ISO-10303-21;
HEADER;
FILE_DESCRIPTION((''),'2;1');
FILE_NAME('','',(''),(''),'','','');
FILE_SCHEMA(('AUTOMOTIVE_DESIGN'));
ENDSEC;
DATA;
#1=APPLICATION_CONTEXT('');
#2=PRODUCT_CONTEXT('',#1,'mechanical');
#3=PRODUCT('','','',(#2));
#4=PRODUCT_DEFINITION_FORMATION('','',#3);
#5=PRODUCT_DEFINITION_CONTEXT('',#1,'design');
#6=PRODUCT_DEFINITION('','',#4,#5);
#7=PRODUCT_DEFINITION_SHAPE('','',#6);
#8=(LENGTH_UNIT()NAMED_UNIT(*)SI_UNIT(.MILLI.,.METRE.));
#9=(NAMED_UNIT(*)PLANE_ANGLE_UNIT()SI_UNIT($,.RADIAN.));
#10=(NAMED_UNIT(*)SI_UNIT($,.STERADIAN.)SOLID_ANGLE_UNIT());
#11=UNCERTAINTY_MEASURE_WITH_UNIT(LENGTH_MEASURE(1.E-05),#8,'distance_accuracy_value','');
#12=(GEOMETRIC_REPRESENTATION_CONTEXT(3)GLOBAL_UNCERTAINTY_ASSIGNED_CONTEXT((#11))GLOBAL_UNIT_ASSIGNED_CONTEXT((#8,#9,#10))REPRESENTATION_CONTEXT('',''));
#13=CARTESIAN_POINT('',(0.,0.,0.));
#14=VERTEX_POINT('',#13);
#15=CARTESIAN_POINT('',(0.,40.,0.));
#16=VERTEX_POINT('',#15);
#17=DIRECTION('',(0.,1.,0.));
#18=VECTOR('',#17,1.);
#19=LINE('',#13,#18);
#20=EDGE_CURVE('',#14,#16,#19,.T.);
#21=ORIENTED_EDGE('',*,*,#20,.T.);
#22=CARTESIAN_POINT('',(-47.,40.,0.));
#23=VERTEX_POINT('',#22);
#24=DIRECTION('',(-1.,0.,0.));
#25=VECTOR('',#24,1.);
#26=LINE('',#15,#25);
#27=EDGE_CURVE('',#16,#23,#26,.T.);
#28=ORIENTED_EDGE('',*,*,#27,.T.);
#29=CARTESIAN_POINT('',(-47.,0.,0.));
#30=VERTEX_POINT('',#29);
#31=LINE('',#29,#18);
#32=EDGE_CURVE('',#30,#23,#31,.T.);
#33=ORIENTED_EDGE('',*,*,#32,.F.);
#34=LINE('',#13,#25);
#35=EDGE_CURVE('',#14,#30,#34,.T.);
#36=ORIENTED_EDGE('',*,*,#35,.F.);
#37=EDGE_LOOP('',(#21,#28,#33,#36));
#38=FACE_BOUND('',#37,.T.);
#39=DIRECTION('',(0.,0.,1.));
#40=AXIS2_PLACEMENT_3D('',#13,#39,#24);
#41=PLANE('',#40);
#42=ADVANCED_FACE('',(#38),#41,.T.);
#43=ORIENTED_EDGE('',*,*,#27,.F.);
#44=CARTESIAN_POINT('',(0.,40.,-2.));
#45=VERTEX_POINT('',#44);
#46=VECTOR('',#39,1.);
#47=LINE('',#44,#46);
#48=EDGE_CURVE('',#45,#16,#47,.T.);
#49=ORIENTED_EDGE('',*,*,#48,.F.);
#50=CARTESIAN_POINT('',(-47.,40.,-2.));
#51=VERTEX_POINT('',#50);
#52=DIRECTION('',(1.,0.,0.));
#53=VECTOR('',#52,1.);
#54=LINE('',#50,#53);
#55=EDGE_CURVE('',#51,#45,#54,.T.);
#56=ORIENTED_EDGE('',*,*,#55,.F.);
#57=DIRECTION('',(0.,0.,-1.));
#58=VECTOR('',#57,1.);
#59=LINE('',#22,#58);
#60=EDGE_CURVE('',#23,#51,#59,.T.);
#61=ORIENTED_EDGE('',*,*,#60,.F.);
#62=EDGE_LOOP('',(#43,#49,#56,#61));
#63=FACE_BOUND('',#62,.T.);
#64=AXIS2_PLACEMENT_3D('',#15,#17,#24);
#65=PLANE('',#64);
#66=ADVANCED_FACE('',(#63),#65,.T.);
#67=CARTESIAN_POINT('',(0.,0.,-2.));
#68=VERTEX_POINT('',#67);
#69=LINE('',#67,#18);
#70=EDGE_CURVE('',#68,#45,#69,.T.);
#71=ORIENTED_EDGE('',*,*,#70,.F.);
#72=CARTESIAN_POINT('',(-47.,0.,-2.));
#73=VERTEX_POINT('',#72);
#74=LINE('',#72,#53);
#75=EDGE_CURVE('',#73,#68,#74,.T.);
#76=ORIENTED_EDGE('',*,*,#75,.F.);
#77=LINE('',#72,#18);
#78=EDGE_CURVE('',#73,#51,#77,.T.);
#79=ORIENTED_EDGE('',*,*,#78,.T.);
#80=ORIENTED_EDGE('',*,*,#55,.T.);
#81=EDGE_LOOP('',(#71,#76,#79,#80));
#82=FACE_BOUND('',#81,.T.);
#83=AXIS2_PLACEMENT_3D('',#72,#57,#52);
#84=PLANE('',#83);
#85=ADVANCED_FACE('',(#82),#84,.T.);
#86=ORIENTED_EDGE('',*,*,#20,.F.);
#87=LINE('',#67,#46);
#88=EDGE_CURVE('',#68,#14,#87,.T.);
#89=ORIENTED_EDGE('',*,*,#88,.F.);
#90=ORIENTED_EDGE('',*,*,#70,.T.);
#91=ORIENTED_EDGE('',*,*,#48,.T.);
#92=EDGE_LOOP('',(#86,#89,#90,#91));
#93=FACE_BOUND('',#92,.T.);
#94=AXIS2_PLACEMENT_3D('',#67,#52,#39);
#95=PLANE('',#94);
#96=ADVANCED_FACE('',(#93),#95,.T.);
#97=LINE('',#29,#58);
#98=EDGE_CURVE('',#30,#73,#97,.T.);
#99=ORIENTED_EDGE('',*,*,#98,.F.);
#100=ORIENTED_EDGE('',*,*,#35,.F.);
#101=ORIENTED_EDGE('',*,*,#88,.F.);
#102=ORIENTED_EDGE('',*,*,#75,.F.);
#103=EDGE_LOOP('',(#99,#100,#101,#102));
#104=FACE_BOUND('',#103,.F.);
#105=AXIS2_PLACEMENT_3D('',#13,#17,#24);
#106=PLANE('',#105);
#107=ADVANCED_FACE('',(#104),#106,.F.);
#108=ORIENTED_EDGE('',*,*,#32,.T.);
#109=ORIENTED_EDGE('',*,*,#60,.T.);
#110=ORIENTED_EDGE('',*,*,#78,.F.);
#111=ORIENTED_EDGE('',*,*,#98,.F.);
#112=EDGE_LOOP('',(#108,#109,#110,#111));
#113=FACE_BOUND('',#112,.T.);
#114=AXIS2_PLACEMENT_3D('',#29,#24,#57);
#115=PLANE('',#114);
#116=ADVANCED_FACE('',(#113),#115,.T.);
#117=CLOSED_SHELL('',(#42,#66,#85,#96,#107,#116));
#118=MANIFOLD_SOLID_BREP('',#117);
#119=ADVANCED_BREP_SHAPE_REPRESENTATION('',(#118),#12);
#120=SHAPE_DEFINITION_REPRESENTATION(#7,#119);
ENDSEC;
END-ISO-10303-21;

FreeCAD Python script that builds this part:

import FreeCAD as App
import Part
import Sketcher

V = App.Vector

doc = App.newDocument("Part")
params = doc.addObject("Spreadsheet::Sheet", "Params")
for row, (alias, value) in enumerate([
    ("sketch1_width", "47 mm"),
    ("sketch1_height", "2 mm"),
    ("pad1_length", "40 mm"),
], start=1):
    params.set(f"A{row}", alias)
    params.set(f"B{row}", "=" + value)
    params.setAlias(f"B{row}", alias)

body = doc.addObject("PartDesign::Body", "Body")

# Sketch on XZ plane
sketch1 = body.newObject("Sketcher::SketchObject", "Sketch")
sketch1.AttachmentSupport = (doc.getObject("XZ_Plane"), [""])
sketch1.MapMode = "FlatFace"
sketch1.addGeometry([
    Part.LineSegment(V(-47, 0, 0), V(0, 0, 0)),
    Part.LineSegment(V(0, 0, 0), V(0, -2, 0)),
    Part.LineSegment(V(0, -2, 0), V(-47, -2, 0)),
    Part.LineSegment(V(-47, -2, 0), V(-47, 0, 0)),
], False)
sketch1.addConstraint([
    Sketcher.Constraint("Coincident", 0, 2, 1, 1),
    Sketcher.Constraint("Coincident", 1, 2, 2, 1),
    Sketcher.Constraint("Coincident", 2, 2, 3, 1),
    Sketcher.Constraint("Coincident", 3, 2, 0, 1),
    Sketcher.Constraint("Horizontal", 0),
    Sketcher.Constraint("Vertical", 1),
    Sketcher.Constraint("Horizontal", 2),
    Sketcher.Constraint("Vertical", 3),
    Sketcher.Constraint("Coincident", 0, 2, -1, 1),
    Sketcher.Constraint("DistanceX", 0, 1, 0, 2, 47.0),
    Sketcher.Constraint("DistanceY", 1, 2, 1, 1, 2.0),
])
sketch1.setExpression("Constraints[9]", "Params.sketch1_width")
sketch1.setExpression("Constraints[10]", "Params.sketch1_height")
pad1 = body.newObject("PartDesign::Pad", "Pad")
pad1.Profile = sketch1
pad1.setExpression("Length", "Params.pad1_length")
pad1.Reversed = True

doc.recompute()
